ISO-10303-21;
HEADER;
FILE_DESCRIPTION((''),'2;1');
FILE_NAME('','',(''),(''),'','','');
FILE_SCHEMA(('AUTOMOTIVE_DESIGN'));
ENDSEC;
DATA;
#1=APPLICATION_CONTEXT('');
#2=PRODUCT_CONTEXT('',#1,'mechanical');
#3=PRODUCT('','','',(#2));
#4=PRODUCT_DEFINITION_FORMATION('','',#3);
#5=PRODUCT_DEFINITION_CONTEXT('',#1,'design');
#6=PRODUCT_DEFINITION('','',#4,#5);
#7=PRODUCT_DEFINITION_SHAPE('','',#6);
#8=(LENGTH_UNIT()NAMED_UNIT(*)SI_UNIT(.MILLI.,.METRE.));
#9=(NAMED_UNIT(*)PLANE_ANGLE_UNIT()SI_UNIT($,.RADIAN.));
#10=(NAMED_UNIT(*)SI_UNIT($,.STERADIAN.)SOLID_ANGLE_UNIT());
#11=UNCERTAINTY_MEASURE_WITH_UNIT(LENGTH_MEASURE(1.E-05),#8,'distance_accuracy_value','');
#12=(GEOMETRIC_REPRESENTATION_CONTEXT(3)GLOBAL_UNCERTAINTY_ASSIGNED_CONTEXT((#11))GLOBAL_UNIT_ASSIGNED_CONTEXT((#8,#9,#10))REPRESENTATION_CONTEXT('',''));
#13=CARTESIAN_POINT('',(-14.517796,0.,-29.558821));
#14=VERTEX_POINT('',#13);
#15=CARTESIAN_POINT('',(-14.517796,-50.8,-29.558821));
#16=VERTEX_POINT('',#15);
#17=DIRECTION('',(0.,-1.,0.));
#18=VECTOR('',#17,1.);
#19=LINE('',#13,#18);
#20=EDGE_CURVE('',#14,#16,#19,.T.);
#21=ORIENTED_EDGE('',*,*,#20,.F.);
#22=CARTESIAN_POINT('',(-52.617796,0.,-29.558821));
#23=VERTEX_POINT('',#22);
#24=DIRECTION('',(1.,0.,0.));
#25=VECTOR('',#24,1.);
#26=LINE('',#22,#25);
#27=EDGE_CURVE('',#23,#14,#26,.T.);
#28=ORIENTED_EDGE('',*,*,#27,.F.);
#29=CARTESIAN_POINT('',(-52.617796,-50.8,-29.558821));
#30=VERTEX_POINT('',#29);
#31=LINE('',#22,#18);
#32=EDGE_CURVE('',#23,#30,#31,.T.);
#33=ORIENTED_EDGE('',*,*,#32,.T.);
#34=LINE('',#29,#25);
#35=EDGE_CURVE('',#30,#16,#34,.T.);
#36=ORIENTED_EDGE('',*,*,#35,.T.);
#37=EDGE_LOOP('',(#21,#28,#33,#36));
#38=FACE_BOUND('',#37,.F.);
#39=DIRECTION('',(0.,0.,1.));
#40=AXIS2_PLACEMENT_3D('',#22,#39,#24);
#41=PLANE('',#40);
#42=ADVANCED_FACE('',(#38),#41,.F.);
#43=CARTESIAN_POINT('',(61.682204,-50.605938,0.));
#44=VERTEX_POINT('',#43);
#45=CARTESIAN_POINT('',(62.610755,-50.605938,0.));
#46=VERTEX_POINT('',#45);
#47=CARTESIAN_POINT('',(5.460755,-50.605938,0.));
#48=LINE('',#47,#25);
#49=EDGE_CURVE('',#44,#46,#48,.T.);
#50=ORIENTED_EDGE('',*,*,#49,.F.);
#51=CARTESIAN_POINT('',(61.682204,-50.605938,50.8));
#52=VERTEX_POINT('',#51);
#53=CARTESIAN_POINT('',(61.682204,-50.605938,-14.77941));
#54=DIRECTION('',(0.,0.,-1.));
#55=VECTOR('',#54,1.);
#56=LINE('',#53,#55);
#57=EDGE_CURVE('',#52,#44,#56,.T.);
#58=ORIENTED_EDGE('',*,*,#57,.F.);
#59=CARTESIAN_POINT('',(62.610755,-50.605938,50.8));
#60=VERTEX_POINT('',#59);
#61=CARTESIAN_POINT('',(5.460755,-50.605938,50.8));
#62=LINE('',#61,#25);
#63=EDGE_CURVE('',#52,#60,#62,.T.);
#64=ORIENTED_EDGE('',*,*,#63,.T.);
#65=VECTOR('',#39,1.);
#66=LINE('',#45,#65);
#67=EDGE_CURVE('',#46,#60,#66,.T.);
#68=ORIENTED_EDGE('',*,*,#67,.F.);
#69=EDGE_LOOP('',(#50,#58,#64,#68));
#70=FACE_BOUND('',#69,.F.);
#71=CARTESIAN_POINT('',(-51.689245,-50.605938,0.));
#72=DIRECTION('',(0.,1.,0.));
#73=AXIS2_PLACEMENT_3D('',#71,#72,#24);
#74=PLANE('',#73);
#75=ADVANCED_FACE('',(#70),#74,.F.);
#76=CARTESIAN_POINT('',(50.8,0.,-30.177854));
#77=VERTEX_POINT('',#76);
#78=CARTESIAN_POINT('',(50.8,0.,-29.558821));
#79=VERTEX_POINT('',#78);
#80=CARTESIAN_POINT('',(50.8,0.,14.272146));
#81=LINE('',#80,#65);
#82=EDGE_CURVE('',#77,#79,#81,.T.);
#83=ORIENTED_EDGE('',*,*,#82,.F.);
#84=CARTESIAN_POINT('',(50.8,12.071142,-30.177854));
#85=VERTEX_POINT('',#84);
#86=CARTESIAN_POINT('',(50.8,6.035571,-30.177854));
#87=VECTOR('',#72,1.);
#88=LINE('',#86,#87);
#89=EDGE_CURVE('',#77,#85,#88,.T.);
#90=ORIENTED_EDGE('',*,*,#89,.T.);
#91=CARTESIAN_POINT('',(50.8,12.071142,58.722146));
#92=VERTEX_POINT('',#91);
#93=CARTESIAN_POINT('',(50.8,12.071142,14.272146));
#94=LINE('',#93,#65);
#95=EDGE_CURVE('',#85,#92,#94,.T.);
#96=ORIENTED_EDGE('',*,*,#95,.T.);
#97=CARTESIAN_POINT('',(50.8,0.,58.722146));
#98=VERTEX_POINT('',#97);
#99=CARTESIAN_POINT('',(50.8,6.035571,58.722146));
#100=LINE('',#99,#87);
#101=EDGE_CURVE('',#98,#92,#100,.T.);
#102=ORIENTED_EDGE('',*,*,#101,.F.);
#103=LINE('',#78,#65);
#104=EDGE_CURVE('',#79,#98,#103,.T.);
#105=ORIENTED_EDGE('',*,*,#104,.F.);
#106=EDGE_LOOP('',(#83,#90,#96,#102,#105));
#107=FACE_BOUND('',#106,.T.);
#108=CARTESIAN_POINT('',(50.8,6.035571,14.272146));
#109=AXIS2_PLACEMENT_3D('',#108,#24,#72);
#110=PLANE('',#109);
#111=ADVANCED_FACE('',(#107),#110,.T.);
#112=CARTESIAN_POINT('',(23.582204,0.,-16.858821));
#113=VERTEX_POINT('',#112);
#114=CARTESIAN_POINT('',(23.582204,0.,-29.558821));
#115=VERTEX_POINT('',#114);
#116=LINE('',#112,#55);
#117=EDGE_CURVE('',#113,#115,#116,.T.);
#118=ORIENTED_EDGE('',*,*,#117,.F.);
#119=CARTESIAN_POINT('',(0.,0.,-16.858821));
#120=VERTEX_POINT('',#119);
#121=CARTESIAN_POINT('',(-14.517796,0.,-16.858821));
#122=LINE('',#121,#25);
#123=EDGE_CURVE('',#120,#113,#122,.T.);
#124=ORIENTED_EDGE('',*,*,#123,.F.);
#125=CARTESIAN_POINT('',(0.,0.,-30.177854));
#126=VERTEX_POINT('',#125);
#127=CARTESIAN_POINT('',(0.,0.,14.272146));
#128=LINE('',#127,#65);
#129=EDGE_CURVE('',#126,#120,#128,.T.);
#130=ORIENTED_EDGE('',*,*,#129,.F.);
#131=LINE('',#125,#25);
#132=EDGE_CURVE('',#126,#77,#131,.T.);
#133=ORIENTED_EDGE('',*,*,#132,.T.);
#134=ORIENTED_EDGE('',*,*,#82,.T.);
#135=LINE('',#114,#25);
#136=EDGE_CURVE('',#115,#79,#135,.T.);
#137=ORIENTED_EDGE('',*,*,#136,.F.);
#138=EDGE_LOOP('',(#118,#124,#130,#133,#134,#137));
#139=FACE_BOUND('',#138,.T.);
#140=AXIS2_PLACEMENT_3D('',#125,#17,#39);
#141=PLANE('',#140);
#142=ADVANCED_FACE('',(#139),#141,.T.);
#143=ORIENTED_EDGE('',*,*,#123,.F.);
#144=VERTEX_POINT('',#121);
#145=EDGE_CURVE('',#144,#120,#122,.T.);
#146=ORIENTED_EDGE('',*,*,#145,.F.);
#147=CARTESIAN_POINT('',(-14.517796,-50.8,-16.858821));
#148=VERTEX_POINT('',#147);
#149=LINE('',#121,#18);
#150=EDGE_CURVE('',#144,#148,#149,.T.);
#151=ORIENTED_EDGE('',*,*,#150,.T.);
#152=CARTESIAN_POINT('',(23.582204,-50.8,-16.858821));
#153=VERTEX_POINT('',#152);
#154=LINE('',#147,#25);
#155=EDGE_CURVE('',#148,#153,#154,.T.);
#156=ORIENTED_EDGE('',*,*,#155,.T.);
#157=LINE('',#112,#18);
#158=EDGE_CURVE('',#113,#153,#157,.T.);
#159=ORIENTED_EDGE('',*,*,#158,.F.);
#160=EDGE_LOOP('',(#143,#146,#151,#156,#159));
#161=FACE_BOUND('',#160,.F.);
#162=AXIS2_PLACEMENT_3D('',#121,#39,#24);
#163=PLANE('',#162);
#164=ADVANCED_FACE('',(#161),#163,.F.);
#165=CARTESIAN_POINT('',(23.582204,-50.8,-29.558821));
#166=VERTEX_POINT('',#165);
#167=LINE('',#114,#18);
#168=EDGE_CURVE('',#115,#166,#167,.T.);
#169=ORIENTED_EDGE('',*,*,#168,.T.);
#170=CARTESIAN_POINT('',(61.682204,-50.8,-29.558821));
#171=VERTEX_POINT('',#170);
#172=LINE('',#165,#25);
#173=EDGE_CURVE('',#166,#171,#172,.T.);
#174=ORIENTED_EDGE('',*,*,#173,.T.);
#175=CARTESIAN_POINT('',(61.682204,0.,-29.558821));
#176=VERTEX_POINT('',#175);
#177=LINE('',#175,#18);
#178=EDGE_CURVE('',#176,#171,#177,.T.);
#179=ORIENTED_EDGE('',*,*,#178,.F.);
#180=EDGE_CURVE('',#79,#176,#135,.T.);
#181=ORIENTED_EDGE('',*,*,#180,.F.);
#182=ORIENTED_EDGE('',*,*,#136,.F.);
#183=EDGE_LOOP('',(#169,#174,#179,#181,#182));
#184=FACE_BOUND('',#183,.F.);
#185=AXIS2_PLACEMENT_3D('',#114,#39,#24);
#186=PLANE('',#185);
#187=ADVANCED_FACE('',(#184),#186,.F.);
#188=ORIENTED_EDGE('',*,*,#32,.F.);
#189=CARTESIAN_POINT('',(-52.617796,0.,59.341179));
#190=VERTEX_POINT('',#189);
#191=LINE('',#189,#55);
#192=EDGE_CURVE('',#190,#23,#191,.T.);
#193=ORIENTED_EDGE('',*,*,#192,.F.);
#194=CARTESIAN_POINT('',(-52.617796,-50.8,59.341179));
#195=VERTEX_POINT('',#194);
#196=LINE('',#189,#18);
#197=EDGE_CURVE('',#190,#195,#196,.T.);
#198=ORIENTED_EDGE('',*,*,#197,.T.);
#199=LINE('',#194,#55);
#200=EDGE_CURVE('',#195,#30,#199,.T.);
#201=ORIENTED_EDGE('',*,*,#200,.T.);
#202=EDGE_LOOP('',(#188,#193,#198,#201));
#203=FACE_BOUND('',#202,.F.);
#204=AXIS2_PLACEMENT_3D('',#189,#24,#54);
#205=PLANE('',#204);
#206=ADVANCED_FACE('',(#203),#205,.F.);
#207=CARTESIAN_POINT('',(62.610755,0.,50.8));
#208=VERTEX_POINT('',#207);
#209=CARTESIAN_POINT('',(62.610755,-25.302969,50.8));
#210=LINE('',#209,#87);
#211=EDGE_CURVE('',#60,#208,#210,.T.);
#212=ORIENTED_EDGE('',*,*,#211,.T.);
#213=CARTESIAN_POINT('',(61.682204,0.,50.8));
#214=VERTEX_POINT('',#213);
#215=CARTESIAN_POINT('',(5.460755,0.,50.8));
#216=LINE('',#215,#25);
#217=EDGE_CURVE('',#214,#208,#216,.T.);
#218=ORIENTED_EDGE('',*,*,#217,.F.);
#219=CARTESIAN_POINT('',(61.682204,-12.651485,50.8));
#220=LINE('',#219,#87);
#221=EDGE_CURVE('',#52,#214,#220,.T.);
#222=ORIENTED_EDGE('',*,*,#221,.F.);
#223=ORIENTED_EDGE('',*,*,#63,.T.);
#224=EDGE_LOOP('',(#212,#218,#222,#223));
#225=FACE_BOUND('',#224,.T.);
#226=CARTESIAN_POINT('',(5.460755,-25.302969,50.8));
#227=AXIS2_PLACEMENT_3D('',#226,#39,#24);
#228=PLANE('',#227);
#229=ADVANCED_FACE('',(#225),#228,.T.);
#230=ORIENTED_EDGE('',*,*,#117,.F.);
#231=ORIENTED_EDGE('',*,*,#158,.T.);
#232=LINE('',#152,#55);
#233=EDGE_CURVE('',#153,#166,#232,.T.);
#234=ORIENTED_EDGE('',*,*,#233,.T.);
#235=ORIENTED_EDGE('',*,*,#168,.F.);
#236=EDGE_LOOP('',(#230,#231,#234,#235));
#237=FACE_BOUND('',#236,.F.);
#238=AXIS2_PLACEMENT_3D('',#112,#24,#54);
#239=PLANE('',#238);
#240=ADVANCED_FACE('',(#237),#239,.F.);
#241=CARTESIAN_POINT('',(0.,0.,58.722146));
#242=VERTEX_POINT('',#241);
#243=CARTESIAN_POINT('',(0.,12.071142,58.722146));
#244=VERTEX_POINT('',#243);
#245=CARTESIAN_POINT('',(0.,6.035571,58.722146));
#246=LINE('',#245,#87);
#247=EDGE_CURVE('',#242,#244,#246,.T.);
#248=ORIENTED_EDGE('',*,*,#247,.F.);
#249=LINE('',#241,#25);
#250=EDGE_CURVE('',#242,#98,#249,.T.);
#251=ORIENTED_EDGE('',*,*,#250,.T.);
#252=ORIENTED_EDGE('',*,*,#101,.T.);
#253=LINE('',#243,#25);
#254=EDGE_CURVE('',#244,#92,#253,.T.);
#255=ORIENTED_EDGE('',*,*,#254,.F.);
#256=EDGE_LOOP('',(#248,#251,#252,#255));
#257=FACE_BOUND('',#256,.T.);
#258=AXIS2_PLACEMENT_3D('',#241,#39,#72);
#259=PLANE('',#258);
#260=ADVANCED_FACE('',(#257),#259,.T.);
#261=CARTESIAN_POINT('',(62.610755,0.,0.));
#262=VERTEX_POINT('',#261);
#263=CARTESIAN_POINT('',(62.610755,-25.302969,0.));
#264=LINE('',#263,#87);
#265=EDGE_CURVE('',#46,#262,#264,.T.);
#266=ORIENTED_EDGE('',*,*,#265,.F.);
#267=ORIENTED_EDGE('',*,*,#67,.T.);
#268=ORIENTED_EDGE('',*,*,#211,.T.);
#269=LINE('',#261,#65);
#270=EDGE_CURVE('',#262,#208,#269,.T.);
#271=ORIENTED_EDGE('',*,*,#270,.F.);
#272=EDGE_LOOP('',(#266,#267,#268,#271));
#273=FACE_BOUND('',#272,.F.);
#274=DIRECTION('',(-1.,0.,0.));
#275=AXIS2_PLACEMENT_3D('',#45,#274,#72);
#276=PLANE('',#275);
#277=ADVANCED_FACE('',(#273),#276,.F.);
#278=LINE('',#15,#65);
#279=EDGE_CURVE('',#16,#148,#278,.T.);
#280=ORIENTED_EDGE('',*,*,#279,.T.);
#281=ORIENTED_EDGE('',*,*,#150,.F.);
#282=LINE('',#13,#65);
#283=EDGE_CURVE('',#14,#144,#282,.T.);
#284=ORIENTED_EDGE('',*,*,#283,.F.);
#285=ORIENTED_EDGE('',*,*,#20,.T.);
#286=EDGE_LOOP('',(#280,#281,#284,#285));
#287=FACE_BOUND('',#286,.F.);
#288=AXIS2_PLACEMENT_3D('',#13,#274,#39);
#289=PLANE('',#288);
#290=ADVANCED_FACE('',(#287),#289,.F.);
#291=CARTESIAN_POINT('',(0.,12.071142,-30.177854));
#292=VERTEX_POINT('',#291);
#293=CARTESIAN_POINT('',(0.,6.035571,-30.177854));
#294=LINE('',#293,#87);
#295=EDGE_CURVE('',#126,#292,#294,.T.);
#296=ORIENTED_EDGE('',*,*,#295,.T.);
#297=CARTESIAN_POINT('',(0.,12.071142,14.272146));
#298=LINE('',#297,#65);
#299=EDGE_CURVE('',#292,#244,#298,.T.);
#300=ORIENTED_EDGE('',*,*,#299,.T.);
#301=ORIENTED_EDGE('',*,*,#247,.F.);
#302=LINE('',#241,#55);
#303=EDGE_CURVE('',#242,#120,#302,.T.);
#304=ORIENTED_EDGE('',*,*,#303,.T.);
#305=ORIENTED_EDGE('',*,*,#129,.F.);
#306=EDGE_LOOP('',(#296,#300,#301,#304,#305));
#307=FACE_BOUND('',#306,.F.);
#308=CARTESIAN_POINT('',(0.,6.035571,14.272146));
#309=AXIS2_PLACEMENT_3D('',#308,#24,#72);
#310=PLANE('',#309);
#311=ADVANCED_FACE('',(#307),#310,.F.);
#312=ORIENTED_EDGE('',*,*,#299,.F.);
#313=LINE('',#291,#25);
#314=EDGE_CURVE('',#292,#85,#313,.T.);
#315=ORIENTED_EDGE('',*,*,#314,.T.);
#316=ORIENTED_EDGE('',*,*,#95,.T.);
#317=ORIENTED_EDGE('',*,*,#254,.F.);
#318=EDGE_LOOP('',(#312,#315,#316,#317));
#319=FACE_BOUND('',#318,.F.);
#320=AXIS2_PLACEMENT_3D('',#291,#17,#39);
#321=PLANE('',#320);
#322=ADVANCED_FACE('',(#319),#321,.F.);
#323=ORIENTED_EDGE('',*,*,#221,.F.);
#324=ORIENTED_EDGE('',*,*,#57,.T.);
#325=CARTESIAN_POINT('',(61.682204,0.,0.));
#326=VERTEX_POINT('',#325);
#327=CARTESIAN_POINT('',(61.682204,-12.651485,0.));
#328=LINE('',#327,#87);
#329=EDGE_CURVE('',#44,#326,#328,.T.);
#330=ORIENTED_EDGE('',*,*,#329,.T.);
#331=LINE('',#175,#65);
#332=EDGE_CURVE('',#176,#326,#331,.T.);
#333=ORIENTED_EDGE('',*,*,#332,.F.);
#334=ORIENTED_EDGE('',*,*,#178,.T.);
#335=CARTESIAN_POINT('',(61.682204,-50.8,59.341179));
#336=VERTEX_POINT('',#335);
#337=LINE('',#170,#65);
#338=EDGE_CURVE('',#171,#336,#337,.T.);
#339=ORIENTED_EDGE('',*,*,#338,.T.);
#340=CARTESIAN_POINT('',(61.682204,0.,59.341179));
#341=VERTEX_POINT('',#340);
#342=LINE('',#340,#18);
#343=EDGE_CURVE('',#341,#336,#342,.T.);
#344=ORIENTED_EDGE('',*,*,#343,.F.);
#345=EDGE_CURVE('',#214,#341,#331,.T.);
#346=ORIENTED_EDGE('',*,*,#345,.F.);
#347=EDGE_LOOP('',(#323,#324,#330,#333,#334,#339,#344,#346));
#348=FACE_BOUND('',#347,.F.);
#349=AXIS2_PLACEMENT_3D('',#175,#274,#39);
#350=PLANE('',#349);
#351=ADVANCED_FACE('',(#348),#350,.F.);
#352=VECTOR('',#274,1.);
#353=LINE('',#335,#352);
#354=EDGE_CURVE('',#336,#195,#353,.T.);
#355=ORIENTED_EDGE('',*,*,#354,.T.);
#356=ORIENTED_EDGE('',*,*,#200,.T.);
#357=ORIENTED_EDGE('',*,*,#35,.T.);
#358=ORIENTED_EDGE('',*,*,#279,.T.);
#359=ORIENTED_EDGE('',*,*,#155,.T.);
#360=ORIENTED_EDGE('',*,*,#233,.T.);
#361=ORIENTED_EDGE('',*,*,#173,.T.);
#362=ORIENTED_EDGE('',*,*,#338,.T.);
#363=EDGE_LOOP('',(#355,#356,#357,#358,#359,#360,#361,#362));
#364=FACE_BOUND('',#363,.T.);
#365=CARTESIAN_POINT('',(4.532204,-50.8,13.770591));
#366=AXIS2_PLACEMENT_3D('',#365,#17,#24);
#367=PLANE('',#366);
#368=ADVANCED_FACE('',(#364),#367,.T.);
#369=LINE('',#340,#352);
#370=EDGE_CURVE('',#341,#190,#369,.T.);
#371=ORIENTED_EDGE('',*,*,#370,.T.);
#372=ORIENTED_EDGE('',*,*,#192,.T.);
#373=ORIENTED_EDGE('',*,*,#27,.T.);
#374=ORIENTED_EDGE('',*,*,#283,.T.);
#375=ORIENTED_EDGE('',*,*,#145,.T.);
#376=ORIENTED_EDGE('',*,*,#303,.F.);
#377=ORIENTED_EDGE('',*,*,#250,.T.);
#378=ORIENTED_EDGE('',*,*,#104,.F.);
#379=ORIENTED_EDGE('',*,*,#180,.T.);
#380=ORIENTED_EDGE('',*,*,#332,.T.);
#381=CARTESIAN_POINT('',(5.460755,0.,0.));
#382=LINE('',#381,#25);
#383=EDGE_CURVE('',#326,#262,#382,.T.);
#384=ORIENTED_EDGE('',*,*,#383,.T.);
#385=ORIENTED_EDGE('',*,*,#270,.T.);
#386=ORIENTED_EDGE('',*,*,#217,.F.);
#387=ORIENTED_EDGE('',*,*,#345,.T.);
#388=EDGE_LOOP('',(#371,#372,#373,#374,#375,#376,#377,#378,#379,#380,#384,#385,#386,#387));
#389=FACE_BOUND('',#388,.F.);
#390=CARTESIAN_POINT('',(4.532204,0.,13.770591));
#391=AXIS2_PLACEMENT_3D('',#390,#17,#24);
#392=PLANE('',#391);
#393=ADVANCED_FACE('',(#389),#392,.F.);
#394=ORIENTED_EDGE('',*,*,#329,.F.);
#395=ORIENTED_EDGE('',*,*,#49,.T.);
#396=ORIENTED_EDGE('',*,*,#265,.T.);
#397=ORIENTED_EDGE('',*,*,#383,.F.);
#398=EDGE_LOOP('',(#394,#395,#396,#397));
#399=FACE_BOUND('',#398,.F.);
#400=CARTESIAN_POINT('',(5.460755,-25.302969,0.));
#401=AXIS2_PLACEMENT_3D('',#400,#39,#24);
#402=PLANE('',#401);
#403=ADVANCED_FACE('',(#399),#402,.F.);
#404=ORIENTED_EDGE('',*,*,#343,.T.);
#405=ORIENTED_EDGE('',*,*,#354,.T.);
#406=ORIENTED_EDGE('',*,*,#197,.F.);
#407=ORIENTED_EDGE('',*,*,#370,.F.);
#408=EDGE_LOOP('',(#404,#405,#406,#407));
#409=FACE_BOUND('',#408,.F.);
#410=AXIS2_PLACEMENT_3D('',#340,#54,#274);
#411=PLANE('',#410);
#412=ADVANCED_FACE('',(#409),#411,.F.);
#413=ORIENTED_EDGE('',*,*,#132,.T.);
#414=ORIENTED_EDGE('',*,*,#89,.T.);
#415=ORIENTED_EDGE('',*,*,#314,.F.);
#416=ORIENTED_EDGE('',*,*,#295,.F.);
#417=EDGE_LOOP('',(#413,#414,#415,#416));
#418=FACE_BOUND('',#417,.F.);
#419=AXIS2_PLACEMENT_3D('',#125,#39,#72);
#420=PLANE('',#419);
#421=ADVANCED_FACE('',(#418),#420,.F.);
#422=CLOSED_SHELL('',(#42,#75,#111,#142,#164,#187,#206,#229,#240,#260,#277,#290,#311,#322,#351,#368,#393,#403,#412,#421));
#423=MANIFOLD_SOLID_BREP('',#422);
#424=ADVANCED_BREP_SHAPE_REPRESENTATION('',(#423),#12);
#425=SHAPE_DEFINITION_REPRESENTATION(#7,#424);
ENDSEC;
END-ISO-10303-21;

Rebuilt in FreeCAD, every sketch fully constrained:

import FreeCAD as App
import Part
import Sketcher
Q = App.Units.Quantity

doc = App.newDocument("Part")
body = doc.addObject("PartDesign::Body", "Body")

# Sketch on XZ plane
sketch1 = doc.addObject("Sketcher::SketchObject", "Sketch")
body.addObject(sketch1)
sketch1.AttachmentSupport = (doc.XZ_Plane, [""])
sketch1.MapMode = "FlatFace"
sketch1.addGeometry([
    Part.LineSegment(App.Vector(61.682204, 59.341179, 0), App.Vector(-52.617796, 59.341179, 0)),  # 0
    Part.LineSegment(App.Vector(-52.617796, 59.341179, 0), App.Vector(-52.617796, -29.558821, 0)),  # 1
    Part.LineSegment(App.Vector(-52.617796, -29.558821, 0), App.Vector(-14.517796, -29.558821, 0)),  # 2
    Part.LineSegment(App.Vector(-14.517796, -29.558821, 0), App.Vector(-14.517796, -16.858821, 0)),  # 3
    Part.LineSegment(App.Vector(-14.517796, -16.858821, 0), App.Vector(23.582204, -16.858821, 0)),  # 4
    Part.LineSegment(App.Vector(23.582204, -16.858821, 0), App.Vector(23.582204, -29.558821, 0)),  # 5
    Part.LineSegment(App.Vector(23.582204, -29.558821, 0), App.Vector(61.682204, -29.558821, 0)),  # 6
    Part.LineSegment(App.Vector(61.682204, -29.558821, 0), App.Vector(61.682204, 59.341179, 0)),  # 7
], False)
sketch1.addConstraint([
    Sketcher.Constraint("Coincident", 0, 2, 1, 1),
    Sketcher.Constraint("Coincident", 1, 2, 2, 1),
    Sketcher.Constraint("Coincident", 2, 2, 3, 1),
    Sketcher.Constraint("Coincident", 3, 2, 4, 1),
    Sketcher.Constraint("Coincident", 4, 2, 5, 1),
    Sketcher.Constraint("Coincident", 5, 2, 6, 1),
    Sketcher.Constraint("Coincident", 6, 2, 7, 1),
    Sketcher.Constraint("Coincident", 7, 2, 0, 1),
    Sketcher.Constraint("Horizontal", 0),
    Sketcher.Constraint("Vertical", 1),
    Sketcher.Constraint("Horizontal", 2),
    Sketcher.Constraint("Vertical", 3),
    Sketcher.Constraint("Horizontal", 4),
    Sketcher.Constraint("Vertical", 5),
    Sketcher.Constraint("Horizontal", 6),
    Sketcher.Constraint("Vertical", 7),
    Sketcher.Constraint("Horizontal", 2, 2, 5, 2),
    Sketcher.Constraint("Equal", 2, 4),
    Sketcher.Constraint("Equal", 4, 6),
    Sketcher.Constraint("DistanceX", 0, 2, 0, 1, Q("4.5 in")),
    Sketcher.Constraint("DistanceY", 1, 2, 1, 1, Q("3.5 in")),
    Sketcher.Constraint("DistanceY", 3, 1, 3, 2, Q("0.5 in")),
    Sketcher.Constraint("DistanceY", -1, 1, 0, 2, Q("59.341179 mm")),
    Sketcher.Constraint("DistanceX", 0, 2, -1, 1, Q("52.617796 mm")),
])
pad1 = doc.addObject("PartDesign::Pad", "Pad")
body.addObject(pad1)
pad1.Profile = sketch1
pad1.Length = Q("2 in")

# Sketch on YZ plane
sketch2 = doc.addObject("Sketcher::SketchObject", "Sketch001")
body.addObject(sketch2)
sketch2.AttachmentSupport = (doc.YZ_Plane, [""])
sketch2.MapMode = "FlatFace"
sketch2.addGeometry([
    Part.LineSegment(App.Vector(0, 58.722146, 0), App.Vector(0, -30.177854, 0)),
    Part.LineSegment(App.Vector(0, -30.177854, 0), App.Vector(12.071142, -30.177854, 0)),
    Part.LineSegment(App.Vector(12.071142, -30.177854, 0), App.Vector(12.071142, 58.722146, 0)),
    Part.LineSegment(App.Vector(12.071142, 58.722146, 0), App.Vector(0, 58.722146, 0)),
], False)
sketch2.addConstraint([
    Sketcher.Constraint("Coincident", 0, 2, 1, 1),
    Sketcher.Constraint("Coincident", 1, 2, 2, 1),
    Sketcher.Constraint("Coincident", 2, 2, 3, 1),
    Sketcher.Constraint("Coincident", 3, 2, 0, 1),
    Sketcher.Constraint("Vertical", 0),
    Sketcher.Constraint("Horizontal", 1),
    Sketcher.Constraint("Vertical", 2),
    Sketcher.Constraint("Horizontal", 3),
    Sketcher.Constraint("PointOnObject", 0, 2, -2),
    Sketcher.Constraint("DistanceY", 0, 2, 0, 1, Q("3.5 in")),
    Sketcher.Constraint("DistanceX", 1, 1, 1, 2, Q("12.071142 mm")),
    Sketcher.Constraint("DistanceY", 0, 2, -1, 1, Q("30.177854 mm")),
])
pad2 = doc.addObject("PartDesign::Pad", "Pad001")
body.addObject(pad2)
pad2.Profile = sketch2
pad2.Length = Q("2 in")

# Sketch on XY plane
sketch3 = doc.addObject("Sketcher::SketchObject", "Sketch002")
body.addObject(sketch3)
sketch3.AttachmentSupport = (doc.XY_Plane, [""])
sketch3.MapMode = "FlatFace"
sketch3.addGeometry([
    Part.LineSegment(App.Vector(-51.689245, 0, 0), App.Vector(-51.689245, -50.605938, 0)),
    Part.LineSegment(App.Vector(-51.689245, -50.605938, 0), App.Vector(62.610755, -50.605938, 0)),
    Part.LineSegment(App.Vector(62.610755, -50.605938, 0), App.Vector(62.610755, 0, 0)),
    Part.LineSegment(App.Vector(62.610755, 0, 0), App.Vector(-51.689245, 0, 0)),
], False)
sketch3.addConstraint([
    Sketcher.Constraint("Coincident", 0, 2, 1, 1),
    Sketcher.Constraint("Coincident", 1, 2, 2, 1),
    Sketcher.Constraint("Coincident", 2, 2, 3, 1),
    Sketcher.Constraint("Coincident", 3, 2, 0, 1),
    Sketcher.Constraint("Vertical", 0),
    Sketcher.Constraint("Horizontal", 1),
    Sketcher.Constraint("Vertical", 2),
    Sketcher.Constraint("Horizontal", 3),
    Sketcher.Constraint("PointOnObject", 2, 2, -1),
    Sketcher.Constraint("DistanceX", 1, 1, 1, 2, Q("4.5 in")),
    Sketcher.Constraint("DistanceY", 0, 2, 0, 1, Q("50.605938 mm")),
    Sketcher.Constraint("DistanceX", 0, 2, -1, 1, Q("51.689245 mm")),
])
pad3 = doc.addObject("PartDesign::Pad", "Pad002")
body.addObject(pad3)
pad3.Profile = sketch3
pad3.Length = Q("2 in")

doc.recompute()
